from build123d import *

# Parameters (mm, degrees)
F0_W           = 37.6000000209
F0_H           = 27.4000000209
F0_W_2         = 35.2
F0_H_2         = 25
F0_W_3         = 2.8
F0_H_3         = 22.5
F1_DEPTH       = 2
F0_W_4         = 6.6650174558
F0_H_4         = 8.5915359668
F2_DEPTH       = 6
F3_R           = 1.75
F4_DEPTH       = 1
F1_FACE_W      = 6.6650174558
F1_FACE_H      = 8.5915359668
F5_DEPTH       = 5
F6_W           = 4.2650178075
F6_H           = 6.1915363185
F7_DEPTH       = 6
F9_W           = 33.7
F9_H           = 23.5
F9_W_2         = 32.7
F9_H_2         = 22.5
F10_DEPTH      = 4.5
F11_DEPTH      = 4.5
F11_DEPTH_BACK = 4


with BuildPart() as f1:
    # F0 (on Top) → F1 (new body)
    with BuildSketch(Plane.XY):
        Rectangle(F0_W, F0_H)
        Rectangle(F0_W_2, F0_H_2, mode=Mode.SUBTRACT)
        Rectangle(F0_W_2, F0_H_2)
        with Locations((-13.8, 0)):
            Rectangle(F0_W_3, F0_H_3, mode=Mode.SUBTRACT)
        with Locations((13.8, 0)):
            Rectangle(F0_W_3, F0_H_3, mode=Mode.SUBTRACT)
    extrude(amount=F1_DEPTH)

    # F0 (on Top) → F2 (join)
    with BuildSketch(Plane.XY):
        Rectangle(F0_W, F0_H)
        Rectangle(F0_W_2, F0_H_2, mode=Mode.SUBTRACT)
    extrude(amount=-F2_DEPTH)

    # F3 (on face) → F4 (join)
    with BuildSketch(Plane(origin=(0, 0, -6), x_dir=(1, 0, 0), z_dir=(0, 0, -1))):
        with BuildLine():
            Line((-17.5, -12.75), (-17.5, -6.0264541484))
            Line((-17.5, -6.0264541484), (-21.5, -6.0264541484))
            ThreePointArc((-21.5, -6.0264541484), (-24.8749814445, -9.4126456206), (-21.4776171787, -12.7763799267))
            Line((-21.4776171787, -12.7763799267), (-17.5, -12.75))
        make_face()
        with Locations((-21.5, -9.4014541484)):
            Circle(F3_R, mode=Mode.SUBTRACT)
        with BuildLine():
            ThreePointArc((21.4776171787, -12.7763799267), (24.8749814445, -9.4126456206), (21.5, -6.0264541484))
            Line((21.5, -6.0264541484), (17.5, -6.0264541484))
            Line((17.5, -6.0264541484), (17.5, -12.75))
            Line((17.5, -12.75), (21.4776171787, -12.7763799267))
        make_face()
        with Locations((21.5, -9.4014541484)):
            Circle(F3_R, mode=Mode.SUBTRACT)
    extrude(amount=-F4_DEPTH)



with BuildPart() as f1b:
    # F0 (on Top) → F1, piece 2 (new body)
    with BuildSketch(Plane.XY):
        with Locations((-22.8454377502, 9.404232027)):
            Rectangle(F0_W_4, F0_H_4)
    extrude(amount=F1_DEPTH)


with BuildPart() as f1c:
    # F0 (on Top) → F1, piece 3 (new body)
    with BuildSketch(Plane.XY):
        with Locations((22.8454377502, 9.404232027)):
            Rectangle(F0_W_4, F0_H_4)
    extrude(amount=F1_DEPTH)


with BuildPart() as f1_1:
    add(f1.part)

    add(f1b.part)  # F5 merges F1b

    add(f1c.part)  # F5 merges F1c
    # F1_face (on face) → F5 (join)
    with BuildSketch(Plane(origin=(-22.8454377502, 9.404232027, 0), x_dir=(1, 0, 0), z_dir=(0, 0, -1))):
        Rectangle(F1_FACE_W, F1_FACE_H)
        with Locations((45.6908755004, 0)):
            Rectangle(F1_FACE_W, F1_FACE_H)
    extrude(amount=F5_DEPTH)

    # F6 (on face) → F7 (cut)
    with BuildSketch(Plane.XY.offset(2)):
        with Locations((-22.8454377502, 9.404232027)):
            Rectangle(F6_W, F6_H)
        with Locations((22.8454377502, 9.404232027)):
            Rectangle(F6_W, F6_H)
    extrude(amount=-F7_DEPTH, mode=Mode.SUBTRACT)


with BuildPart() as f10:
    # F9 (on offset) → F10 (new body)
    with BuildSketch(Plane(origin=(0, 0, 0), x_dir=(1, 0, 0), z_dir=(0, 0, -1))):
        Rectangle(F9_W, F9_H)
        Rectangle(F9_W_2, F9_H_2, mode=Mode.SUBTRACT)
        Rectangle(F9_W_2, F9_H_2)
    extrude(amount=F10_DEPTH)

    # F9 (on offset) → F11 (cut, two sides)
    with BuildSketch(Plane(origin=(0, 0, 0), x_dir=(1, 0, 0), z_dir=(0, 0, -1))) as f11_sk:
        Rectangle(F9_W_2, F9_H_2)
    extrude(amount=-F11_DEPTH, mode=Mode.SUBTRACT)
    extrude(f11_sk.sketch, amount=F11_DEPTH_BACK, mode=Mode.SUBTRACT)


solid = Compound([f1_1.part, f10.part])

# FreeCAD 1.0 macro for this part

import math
import FreeCAD as App
import Part
import Sketcher

V = App.Vector
Q = App.Units.Quantity

doc = App.newDocument("Part")
body = doc.addObject("PartDesign::Body", "Body")

# Sketch on XY plane
sketch1 = body.newObject("Sketcher::SketchObject", "Sketch")
sketch1.AttachmentSupport = (doc.getObject("XY_Plane"), [""])
sketch1.MapMode = "FlatFace"
sketch1.addGeometry(Part.LineSegment(V(-18.8, 13.7, 0), V(-18.8, -13.7, 0)), False)
sketch1.addGeometry(Part.LineSegment(V(-18.8, -13.7, 0), V(18.8, -13.7, 0)), False)
sketch1.addGeometry(Part.LineSegment(V(18.8, -13.7, 0), V(18.8, 13.7, 0)), False)
sketch1.addGeometry(Part.LineSegment(V(18.8, 13.7, 0), V(-18.8, 13.7, 0)), False)
sketch1.addGeometry(Part.LineSegment(V(-12.4, -11.2, 0), V(-15.2, -11.2, 0)), False)
sketch1.addGeometry(Part.LineSegment(V(-15.2, -11.2, 0), V(-15.2, 11.2, 0)), False)
sketch1.addGeometry(Part.LineSegment(V(-15.2, 11.2, 0), V(-12.4, 11.2, 0)), False)
sketch1.addGeometry(Part.LineSegment(V(-12.4, 11.2, 0), V(-12.4, -11.2, 0)), False)
sketch1.addGeometry(Part.LineSegment(V(15.2, -11.2, 0), V(12.4, -11.2, 0)), False)
sketch1.addGeometry(Part.LineSegment(V(12.4, -11.2, 0), V(12.4, 11.2, 0)), False)
sketch1.addGeometry(Part.LineSegment(V(12.4, 11.2, 0), V(15.2, 11.2, 0)), False)
sketch1.addGeometry(Part.LineSegment(V(15.2, 11.2, 0), V(15.2, -11.2, 0)), False)
sketch1.addConstraint(Sketcher.Constraint("Coincident", 0, 2, 1, 1))
sketch1.addConstraint(Sketcher.Constraint("Coincident", 1, 2, 2, 1))
sketch1.addConstraint(Sketcher.Constraint("Coincident", 2, 2, 3, 1))
sketch1.addConstraint(Sketcher.Constraint("Coincident", 3, 2, 0, 1))
sketch1.addConstraint(Sketcher.Constraint("Coincident", 4, 2, 5, 1))
sketch1.addConstraint(Sketcher.Constraint("Coincident", 5, 2, 6, 1))
sketch1.addConstraint(Sketcher.Constraint("Coincident", 6, 2, 7, 1))
sketch1.addConstraint(Sketcher.Constraint("Coincident", 7, 2, 4, 1))
sketch1.addConstraint(Sketcher.Constraint("Coincident", 8, 2, 9, 1))
sketch1.addConstraint(Sketcher.Constraint("Coincident", 9, 2, 10, 1))
sketch1.addConstraint(Sketcher.Constraint("Coincident", 10, 2, 11, 1))
sketch1.addConstraint(Sketcher.Constraint("Coincident", 11, 2, 8, 1))
sketch1.addConstraint(Sketcher.Constraint("Vertical", 0))
sketch1.addConstraint(Sketcher.Constraint("Horizontal", 1))
sketch1.addConstraint(Sketcher.Constraint("Vertical", 2))
sketch1.addConstraint(Sketcher.Constraint("Horizontal", 3))
sketch1.addConstraint(Sketcher.Constraint("Horizontal", 4))
sketch1.addConstraint(Sketcher.Constraint("Vertical", 5))
sketch1.addConstraint(Sketcher.Constraint("Horizontal", 6))
sketch1.addConstraint(Sketcher.Constraint("Vertical", 7))
sketch1.addConstraint(Sketcher.Constraint("Horizontal", 8))
sketch1.addConstraint(Sketcher.Constraint("Vertical", 9))
sketch1.addConstraint(Sketcher.Constraint("Horizontal", 10))
sketch1.addConstraint(Sketcher.Constraint("Vertical", 11))
sketch1.addConstraint(Sketcher.Constraint("Symmetric", 0, 2, 2, 2, -1, 1))
sketch1.addConstraint(Sketcher.Constraint("Symmetric", 6, 2, 8, 2, -1, 1))
sketch1.addConstraint(Sketcher.Constraint("Symmetric", 4, 2, 10, 2, -1, 1))
sketch1.addConstraint(Sketcher.Constraint("Horizontal", 7, 2, 8, 2))
sketch1.addConstraint(Sketcher.Constraint("DistanceX", 1, 1, 1, 2, 37.6))
sketch1.addConstraint(Sketcher.Constraint("DistanceX", 4, 2, 4, 1, 2.8))
sketch1.addConstraint(Sketcher.Constraint("DistanceY", 0, 2, 0, 1, 27.4))
sketch1.addConstraint(Sketcher.Constraint("DistanceY", 5, 1, 5, 2, 22.5))
sketch1.addConstraint(Sketcher.Constraint("DistanceX", 4, 2, 1, 2, 34.0))
pad1 = body.newObject("PartDesign::Pad", "Pad")
pad1.Profile = sketch1
pad1.Length = 2

# Sketch on XY plane
sketch2 = body.newObject("Sketcher::SketchObject", "Sketch001")
sketch2.AttachmentSupport = (doc.getObject("XY_Plane"), [""])
sketch2.MapMode = "FlatFace"
sketch2.addGeometry(Part.LineSegment(V(-19, 14, 0), V(-19, -14, 0)), False)
sketch2.addGeometry(Part.LineSegment(V(-19, -14, 0), V(19, -14, 0)), False)
sketch2.addGeometry(Part.LineSegment(V(19, -14, 0), V(19, 14, 0)), False)
sketch2.addGeometry(Part.LineSegment(V(19, 14, 0), V(-19, 14, 0)), False)
sketch2.addGeometry(Part.LineSegment(V(18, -12, 0), V(-18, -12, 0)), False)
sketch2.addGeometry(Part.LineSegment(V(-18, -12, 0), V(-18, 12, 0)), False)
sketch2.addGeometry(Part.LineSegment(V(-18, 12, 0), V(18, 12, 0)), False)
sketch2.addGeometry(Part.LineSegment(V(18, 12, 0), V(18, -12, 0)), False)
sketch2.addConstraint(Sketcher.Constraint("Coincident", 0, 2, 1, 1))
sketch2.addConstraint(Sketcher.Constraint("Coincident", 1, 2, 2, 1))
sketch2.addConstraint(Sketcher.Constraint("Coincident", 2, 2, 3, 1))
sketch2.addConstraint(Sketcher.Constraint("Coincident", 3, 2, 0, 1))
sketch2.addConstraint(Sketcher.Constraint("Coincident", 4, 2, 5, 1))
sketch2.addConstraint(Sketcher.Constraint("Coincident", 5, 2, 6, 1))
sketch2.addConstraint(Sketcher.Constraint("Coincident", 6, 2, 7, 1))
sketch2.addConstraint(Sketcher.Constraint("Coincident", 7, 2, 4, 1))
sketch2.addConstraint(Sketcher.Constraint("Vertical", 0))
sketch2.addConstraint(Sketcher.Constraint("Horizontal", 1))
sketch2.addConstraint(Sketcher.Constraint("Vertical", 2))
sketch2.addConstraint(Sketcher.Constraint("Horizontal", 3))
sketch2.addConstraint(Sketcher.Constraint("Horizontal", 4))
sketch2.addConstraint(Sketcher.Constraint("Vertical", 5))
sketch2.addConstraint(Sketcher.Constraint("Horizontal", 6))
sketch2.addConstraint(Sketcher.Constraint("Vertical", 7))
sketch2.addConstraint(Sketcher.Constraint("Symmetric", 0, 2, 2, 2, -1, 1))
sketch2.addConstraint(Sketcher.Constraint("Symmetric", 4, 2, 6, 2, -1, 1))
sketch2.addConstraint(Sketcher.Constraint("DistanceY", 5, 1, 5, 2, 25.0))
sketch2.addConstraint(Sketcher.Constraint("DistanceX", 1, 1, 1, 2, 37.6))
sketch2.addConstraint(Sketcher.Constraint("DistanceX", 4, 2, 4, 1, 35.2))
sketch2.addConstraint(Sketcher.Constraint("DistanceY", 0, 2, 0, 1, 27.4))
pad2 = body.newObject("PartDesign::Pad", "Pad001")
pad2.Profile = sketch2
pad2.Length = 6
pad2.Reversed = True

# Sketch on XY plane
sketch3 = body.newObject("Sketcher::SketchObject", "Sketch002")
sketch3.AttachmentSupport = (doc.getObject("XY_Plane"), [""])
sketch3.MapMode = "FlatFace"
sketch3.AttachmentOffset = App.Placement(V(0, 0, -6), App.Rotation())
sketch3.addGeometry(Part.LineSegment(V(-17.5, 12.8, 0), V(-17.5, 6, 0)), False)
sketch3.addGeometry(Part.LineSegment(V(-17.5, 6, 0), V(-21.5, 6, 0)), False)
sketch3.addGeometry(Part.ArcOfCircle(Part.Circle(V(-21.5, 9.4, 0), V(0, 0, 1), 3.4), math.radians(90), math.radians(270)), False)
sketch3.addGeometry(Part.LineSegment(V(-21.5, 12.8, 0), V(-17.5, 12.8, 0)), False)
sketch3.addGeometry(Part.Circle(V(-21.5, 9.4, 0), V(0, 0, 1), 1.8), False)
sketch3.addGeometry(Part.ArcOfCircle(Part.Circle(V(21.5, 9.4, 0), V(0, 0, 1), 3.4), math.radians(-90), math.radians(90)), False)
sketch3.addGeometry(Part.LineSegment(V(21.5, 6, 0), V(17.5, 6, 0)), False)
sketch3.addGeometry(Part.LineSegment(V(17.5, 6, 0), V(17.5, 12.8, 0)), False)
sketch3.addGeometry(Part.LineSegment(V(17.5, 12.8, 0), V(21.5, 12.8, 0)), False)
sketch3.addGeometry(Part.Circle(V(21.5, 9.4, 0), V(0, 0, 1), 1.8), False)
sketch3.addConstraint(Sketcher.Constraint("Coincident", 0, 2, 1, 1))
sketch3.addConstraint(Sketcher.Constraint("Tangent", 1, 2, 2, 2))
sketch3.addConstraint(Sketcher.Constraint("Tangent", 2, 1, 3, 1))
sketch3.addConstraint(Sketcher.Constraint("Coincident", 3, 2, 0, 1))
sketch3.addConstraint(Sketcher.Constraint("Tangent", 5, 1, 6, 1))
sketch3.addConstraint(Sketcher.Constraint("Coincident", 6, 2, 7, 1))
sketch3.addConstraint(Sketcher.Constraint("Coincident", 7, 2, 8, 1))
sketch3.addConstraint(Sketcher.Constraint("Tangent", 8, 2, 5, 2))
sketch3.addConstraint(Sketcher.Constraint("Vertical", 0))
sketch3.addConstraint(Sketcher.Constraint("Horizontal", 1))
sketch3.addConstraint(Sketcher.Constraint("Horizontal", 6))
sketch3.addConstraint(Sketcher.Constraint("Vertical", 7))
sketch3.addConstraint(Sketcher.Constraint("Coincident", 4, 3, 2, 3))
sketch3.addConstraint(Sketcher.Constraint("Coincident", 9, 3, 5, 3))
sketch3.addConstraint(Sketcher.Constraint("Equal", 2, 5))
sketch3.addConstraint(Sketcher.Constraint("Equal", 4, 9))
sketch3.addConstraint(Sketcher.Constraint("Symmetric", 2, 3, 5, 3, -2))
sketch3.addConstraint(Sketcher.Constraint("Symmetric", 3, 2, 7, 2, -2))
sketch3.addConstraint(Sketcher.Constraint("Diameter", 4, 3.5))
sketch3.addConstraint(Sketcher.Constraint("DistanceX", 1, 2, 1, 1, 4.0))
sketch3.addConstraint(Sketcher.Constraint("Radius", 2, 3.375))
sketch3.addConstraint(Sketcher.Constraint("DistanceX", 2, 3, 5, 3, 43.0))
sketch3.addConstraint(Sketcher.Constraint("Angle", 3, Q("-0.379985 deg")))
sketch3.addConstraint(Sketcher.Constraint("DistanceY", -1, 1, 3, 2, 12.75))
pad3 = body.newObject("PartDesign::Pad", "Pad002")
pad3.Profile = sketch3
pad3.Length = 1
body2 = doc.addObject("PartDesign::Body", "Body001")

# Sketch on XY plane
sketch4 = body2.newObject("Sketcher::SketchObject", "Sketch003")
sketch4.AttachmentSupport = (doc.getObject("XY_Plane001"), [""])
sketch4.MapMode = "FlatFace"
sketch4.addGeometry(Part.LineSegment(V(-26, 14, 0), V(-26, 5, 0)), False)
sketch4.addGeometry(Part.LineSegment(V(-26, 5, 0), V(-20, 5, 0)), False)
sketch4.addGeometry(Part.LineSegment(V(-20, 5, 0), V(-20, 14, 0)), False)
sketch4.addGeometry(Part.LineSegment(V(-20, 14, 0), V(-26, 14, 0)), False)
sketch4.addConstraint(Sketcher.Constraint("Coincident", 0, 2, 1, 1))
sketch4.addConstraint(Sketcher.Constraint("Coincident", 1, 2, 2, 1))
sketch4.addConstraint(Sketcher.Constraint("Coincident", 2, 2, 3, 1))
sketch4.addConstraint(Sketcher.Constraint("Coincident", 3, 2, 0, 1))
sketch4.addConstraint(Sketcher.Constraint("Vertical", 0))
sketch4.addConstraint(Sketcher.Constraint("Horizontal", 1))
sketch4.addConstraint(Sketcher.Constraint("Vertical", 2))
sketch4.addConstraint(Sketcher.Constraint("Horizontal", 3))
sketch4.addConstraint(Sketcher.Constraint("DistanceY", -1, 1, 2, 2, 13.7))
sketch4.addConstraint(Sketcher.Constraint("DistanceX", 1, 1, 1, 2, 6.665017))
sketch4.addConstraint(Sketcher.Constraint("DistanceY", 0, 2, 0, 1, 8.591536))
sketch4.addConstraint(Sketcher.Constraint("DistanceX", 1, 2, -1, 1, 19.512929))
pad4 = body2.newObject("PartDesign::Pad", "Pad003")
pad4.Profile = sketch4
pad4.Length = 2
body3 = doc.addObject("PartDesign::Body", "Body002")

# Sketch on XY plane
sketch5 = body3.newObject("Sketcher::SketchObject", "Sketch004")
sketch5.AttachmentSupport = (doc.getObject("XY_Plane002"), [""])
sketch5.MapMode = "FlatFace"
sketch5.addGeometry(Part.LineSegment(V(20, 14, 0), V(20, 5, 0)), False)
sketch5.addGeometry(Part.LineSegment(V(20, 5, 0), V(26, 5, 0)), False)
sketch5.addGeometry(Part.LineSegment(V(26, 5, 0), V(26, 14, 0)), False)
sketch5.addGeometry(Part.LineSegment(V(26, 14, 0), V(20, 14, 0)), False)
sketch5.addConstraint(Sketcher.Constraint("Coincident", 0, 2, 1, 1))
sketch5.addConstraint(Sketcher.Constraint("Coincident", 1, 2, 2, 1))
sketch5.addConstraint(Sketcher.Constraint("Coincident", 2, 2, 3, 1))
sketch5.addConstraint(Sketcher.Constraint("Coincident", 3, 2, 0, 1))
sketch5.addConstraint(Sketcher.Constraint("Vertical", 0))
sketch5.addConstraint(Sketcher.Constraint("Horizontal", 1))
sketch5.addConstraint(Sketcher.Constraint("Vertical", 2))
sketch5.addConstraint(Sketcher.Constraint("Horizontal", 3))
sketch5.addConstraint(Sketcher.Constraint("DistanceY", -1, 1, 2, 2, 13.7))
sketch5.addConstraint(Sketcher.Constraint("DistanceX", 1, 1, 1, 2, 6.665017))
sketch5.addConstraint(Sketcher.Constraint("DistanceY", 0, 2, 0, 1, 8.591536))
sketch5.addConstraint(Sketcher.Constraint("DistanceX", -1, 1, 0, 2, 19.512929))
pad5 = body3.newObject("PartDesign::Pad", "Pad004")
pad5.Profile = sketch5
pad5.Length = 2
body.AllowCompound = True
doc.recompute()

boolean = body.newObject("PartDesign::Boolean", "Boolean")
boolean.Type = "Fuse"
boolean.addObjects([body2])
doc.recompute()

boolean2 = body.newObject("PartDesign::Boolean", "Boolean001")
boolean2.Type = "Fuse"
boolean2.addObjects([body3])

# Sketch on XY plane
sketch6 = body.newObject("Sketcher::SketchObject", "Sketch005")
sketch6.AttachmentSupport = (doc.getObject("XY_Plane"), [""])
sketch6.MapMode = "FlatFace"
sketch6.addGeometry(Part.LineSegment(V(-26, 5, 0), V(-26, 14, 0)), False)
sketch6.addGeometry(Part.LineSegment(V(-26, 14, 0), V(-20, 14, 0)), False)
sketch6.addGeometry(Part.LineSegment(V(-20, 14, 0), V(-20, 5, 0)), False)
sketch6.addGeometry(Part.LineSegment(V(-20, 5, 0), V(-26, 5, 0)), False)
sketch6.addGeometry(Part.LineSegment(V(20, 5, 0), V(20, 14, 0)), False)
sketch6.addGeometry(Part.LineSegment(V(20, 14, 0), V(26, 14, 0)), False)
sketch6.addGeometry(Part.LineSegment(V(26, 14, 0), V(26, 5, 0)), False)
sketch6.addGeometry(Part.LineSegment(V(26, 5, 0), V(20, 5, 0)), False)
sketch6.addConstraint(Sketcher.Constraint("Coincident", 0, 2, 1, 1))
sketch6.addConstraint(Sketcher.Constraint("Coincident", 1, 2, 2, 1))
sketch6.addConstraint(Sketcher.Constraint("Coincident", 2, 2, 3, 1))
sketch6.addConstraint(Sketcher.Constraint("Coincident", 3, 2, 0, 1))
sketch6.addConstraint(Sketcher.Constraint("Coincident", 4, 2, 5, 1))
sketch6.addConstraint(Sketcher.Constraint("Coincident", 5, 2, 6, 1))
sketch6.addConstraint(Sketcher.Constraint("Coincident", 6, 2, 7, 1))
sketch6.addConstraint(Sketcher.Constraint("Coincident", 7, 2, 4, 1))
sketch6.addConstraint(Sketcher.Constraint("Vertical", 0))
sketch6.addConstraint(Sketcher.Constraint("Horizontal", 1))
sketch6.addConstraint(Sketcher.Constraint("Vertical", 2))
sketch6.addConstraint(Sketcher.Constraint("Horizontal", 3))
sketch6.addConstraint(Sketcher.Constraint("Vertical", 4))
sketch6.addConstraint(Sketcher.Constraint("Horizontal", 5))
sketch6.addConstraint(Sketcher.Constraint("Vertical", 6))
sketch6.addConstraint(Sketcher.Constraint("Horizontal", 7))
sketch6.addConstraint(Sketcher.Constraint("Symmetric", 1, 2, 4, 2, -2))
sketch6.addConstraint(Sketcher.Constraint("Symmetric", 3, 2, 6, 2, -2))
sketch6.addConstraint(Sketcher.Constraint("DistanceY", -1, 1, 0, 2, 13.7))
sketch6.addConstraint(Sketcher.Constraint("DistanceX", 1, 1, 1, 2, 6.665017))
sketch6.addConstraint(Sketcher.Constraint("DistanceY", 0, 1, 0, 2, 8.591536))
sketch6.addConstraint(Sketcher.Constraint("DistanceX", 1, 2, -1, 1, 19.512929))
pad6 = body.newObject("PartDesign::Pad", "Pad005")
pad6.Profile = sketch6
pad6.Length = 5
pad6.Reversed = True

# Sketch on XY plane
sketch7 = body.newObject("Sketcher::SketchObject", "Sketch006")
sketch7.AttachmentSupport = (doc.getObject("XY_Plane"), [""])
sketch7.MapMode = "FlatFace"
sketch7.AttachmentOffset = App.Placement(V(0, 0, 2), App.Rotation())
sketch7.addGeometry(Part.LineSegment(V(-25, 12.5, 0), V(-25, 6.3, 0)), False)
sketch7.addGeometry(Part.LineSegment(V(-25, 6.3, 0), V(-20.7, 6.3, 0)), False)
sketch7.addGeometry(Part.LineSegment(V(-20.7, 6.3, 0), V(-20.7, 12.5, 0)), False)
sketch7.addGeometry(Part.LineSegment(V(-20.7, 12.5, 0), V(-25, 12.5, 0)), False)
sketch7.addGeometry(Part.LineSegment(V(20.7, 12.5, 0), V(20.7, 6.3, 0)), False)
sketch7.addGeometry(Part.LineSegment(V(20.7, 6.3, 0), V(25, 6.3, 0)), False)
sketch7.addGeometry(Part.LineSegment(V(25, 6.3, 0), V(25, 12.5, 0)), False)
sketch7.addGeometry(Part.LineSegment(V(25, 12.5, 0), V(20.7, 12.5, 0)), False)
sketch7.addConstraint(Sketcher.Constraint("Coincident", 0, 2, 1, 1))
sketch7.addConstraint(Sketcher.Constraint("Coincident", 1, 2, 2, 1))
sketch7.addConstraint(Sketcher.Constraint("Coincident", 2, 2, 3, 1))
sketch7.addConstraint(Sketcher.Constraint("Coincident", 3, 2, 0, 1))
sketch7.addConstraint(Sketcher.Constraint("Coincident", 4, 2, 5, 1))
sketch7.addConstraint(Sketcher.Constraint("Coincident", 5, 2, 6, 1))
sketch7.addConstraint(Sketcher.Constraint("Coincident", 6, 2, 7, 1))
sketch7.addConstraint(Sketcher.Constraint("Coincident", 7, 2, 4, 1))
sketch7.addConstraint(Sketcher.Constraint("Vertical", 0))
sketch7.addConstraint(Sketcher.Constraint("Horizontal", 1))
sketch7.addConstraint(Sketcher.Constraint("Vertical", 2))
sketch7.addConstraint(Sketcher.Constraint("Horizontal", 3))
sketch7.addConstraint(Sketcher.Constraint("Vertical", 4))
sketch7.addConstraint(Sketcher.Constraint("Horizontal", 5))
sketch7.addConstraint(Sketcher.Constraint("Vertical", 6))
sketch7.addConstraint(Sketcher.Constraint("Horizontal", 7))
sketch7.addConstraint(Sketcher.Constraint("Symmetric", 1, 2, 4, 2, -2))
sketch7.addConstraint(Sketcher.Constraint("Symmetric", 3, 2, 6, 2, -2))
sketch7.addConstraint(Sketcher.Constraint("DistanceY", -1, 1, 2, 2, 12.5))
sketch7.addConstraint(Sketcher.Constraint("DistanceX", 1, 1, 1, 2, 4.265018))
sketch7.addConstraint(Sketcher.Constraint("DistanceY", 0, 2, 0, 1, 6.191536))
sketch7.addConstraint(Sketcher.Constraint("DistanceX", 1, 2, -1, 1, 20.712929))
pocket1 = body.newObject("PartDesign::Pocket", "Pocket")
pocket1.Profile = sketch7
pocket1.Length = 6
body4 = doc.addObject("PartDesign::Body", "Body003")

# Sketch on XY plane
sketch8 = body4.newObject("Sketcher::SketchObject", "Sketch007")
sketch8.AttachmentSupport = (doc.getObject("XY_Plane003"), [""])
sketch8.MapMode = "FlatFace"
sketch8.addGeometry(Part.LineSegment(V(-17, -12, 0), V(-17, 12, 0)), False)
sketch8.addGeometry(Part.LineSegment(V(-17, 12, 0), V(17, 12, 0)), False)
sketch8.addGeometry(Part.LineSegment(V(17, 12, 0), V(17, -12, 0)), False)
sketch8.addGeometry(Part.LineSegment(V(17, -12, 0), V(-17, -12, 0)), False)
sketch8.addConstraint(Sketcher.Constraint("Coincident", 0, 2, 1, 1))
sketch8.addConstraint(Sketcher.Constraint("Coincident", 1, 2, 2, 1))
sketch8.addConstraint(Sketcher.Constraint("Coincident", 2, 2, 3, 1))
sketch8.addConstraint(Sketcher.Constraint("Coincident", 3, 2, 0, 1))
sketch8.addConstraint(Sketcher.Constraint("Vertical", 0))
sketch8.addConstraint(Sketcher.Constraint("Horizontal", 1))
sketch8.addConstraint(Sketcher.Constraint("Vertical", 2))
sketch8.addConstraint(Sketcher.Constraint("Horizontal", 3))
sketch8.addConstraint(Sketcher.Constraint("Symmetric", 0, 2, 2, 2, -1, 1))
sketch8.addConstraint(Sketcher.Constraint("DistanceX", 1, 1, 1, 2, 33.7))
sketch8.addConstraint(Sketcher.Constraint("DistanceY", 0, 1, 0, 2, 23.5))
pad7 = body4.newObject("PartDesign::Pad", "Pad006")
pad7.Profile = sketch8
pad7.Length = 4.5
pad7.Reversed = True

# Sketch on XY plane
sketch9 = body4.newObject("Sketcher::SketchObject", "Sketch008")
sketch9.AttachmentSupport = (doc.getObject("XY_Plane003"), [""])
sketch9.MapMode = "FlatFace"
sketch9.addGeometry(Part.LineSegment(V(-16, -11, 0), V(-16, 11, 0)), False)
sketch9.addGeometry(Part.LineSegment(V(-16, 11, 0), V(16, 11, 0)), False)
sketch9.addGeometry(Part.LineSegment(V(16, 11, 0), V(16, -11, 0)), False)
sketch9.addGeometry(Part.LineSegment(V(16, -11, 0), V(-16, -11, 0)), False)
sketch9.addConstraint(Sketcher.Constraint("Coincident", 0, 2, 1, 1))
sketch9.addConstraint(Sketcher.Constraint("Coincident", 1, 2, 2, 1))
sketch9.addConstraint(Sketcher.Constraint("Coincident", 2, 2, 3, 1))
sketch9.addConstraint(Sketcher.Constraint("Coincident", 3, 2, 0, 1))
sketch9.addConstraint(Sketcher.Constraint("Vertical", 0))
sketch9.addConstraint(Sketcher.Constraint("Horizontal", 1))
sketch9.addConstraint(Sketcher.Constraint("Vertical", 2))
sketch9.addConstraint(Sketcher.Constraint("Horizontal", 3))
sketch9.addConstraint(Sketcher.Constraint("Symmetric", 0, 2, 2, 2, -1, 1))
sketch9.addConstraint(Sketcher.Constraint("DistanceX", 1, 1, 1, 2, 32.7))
sketch9.addConstraint(Sketcher.Constraint("DistanceY", 0, 1, 0, 2, 22.5))
pocket2 = body4.newObject("PartDesign::Pocket", "Pocket001")
pocket2.Profile = sketch9
pocket2.Type = "TwoLengths"
pocket2.Length = 4.5
pocket2.Length2 = 4
pocket2.Reversed = True

doc.recompute()
